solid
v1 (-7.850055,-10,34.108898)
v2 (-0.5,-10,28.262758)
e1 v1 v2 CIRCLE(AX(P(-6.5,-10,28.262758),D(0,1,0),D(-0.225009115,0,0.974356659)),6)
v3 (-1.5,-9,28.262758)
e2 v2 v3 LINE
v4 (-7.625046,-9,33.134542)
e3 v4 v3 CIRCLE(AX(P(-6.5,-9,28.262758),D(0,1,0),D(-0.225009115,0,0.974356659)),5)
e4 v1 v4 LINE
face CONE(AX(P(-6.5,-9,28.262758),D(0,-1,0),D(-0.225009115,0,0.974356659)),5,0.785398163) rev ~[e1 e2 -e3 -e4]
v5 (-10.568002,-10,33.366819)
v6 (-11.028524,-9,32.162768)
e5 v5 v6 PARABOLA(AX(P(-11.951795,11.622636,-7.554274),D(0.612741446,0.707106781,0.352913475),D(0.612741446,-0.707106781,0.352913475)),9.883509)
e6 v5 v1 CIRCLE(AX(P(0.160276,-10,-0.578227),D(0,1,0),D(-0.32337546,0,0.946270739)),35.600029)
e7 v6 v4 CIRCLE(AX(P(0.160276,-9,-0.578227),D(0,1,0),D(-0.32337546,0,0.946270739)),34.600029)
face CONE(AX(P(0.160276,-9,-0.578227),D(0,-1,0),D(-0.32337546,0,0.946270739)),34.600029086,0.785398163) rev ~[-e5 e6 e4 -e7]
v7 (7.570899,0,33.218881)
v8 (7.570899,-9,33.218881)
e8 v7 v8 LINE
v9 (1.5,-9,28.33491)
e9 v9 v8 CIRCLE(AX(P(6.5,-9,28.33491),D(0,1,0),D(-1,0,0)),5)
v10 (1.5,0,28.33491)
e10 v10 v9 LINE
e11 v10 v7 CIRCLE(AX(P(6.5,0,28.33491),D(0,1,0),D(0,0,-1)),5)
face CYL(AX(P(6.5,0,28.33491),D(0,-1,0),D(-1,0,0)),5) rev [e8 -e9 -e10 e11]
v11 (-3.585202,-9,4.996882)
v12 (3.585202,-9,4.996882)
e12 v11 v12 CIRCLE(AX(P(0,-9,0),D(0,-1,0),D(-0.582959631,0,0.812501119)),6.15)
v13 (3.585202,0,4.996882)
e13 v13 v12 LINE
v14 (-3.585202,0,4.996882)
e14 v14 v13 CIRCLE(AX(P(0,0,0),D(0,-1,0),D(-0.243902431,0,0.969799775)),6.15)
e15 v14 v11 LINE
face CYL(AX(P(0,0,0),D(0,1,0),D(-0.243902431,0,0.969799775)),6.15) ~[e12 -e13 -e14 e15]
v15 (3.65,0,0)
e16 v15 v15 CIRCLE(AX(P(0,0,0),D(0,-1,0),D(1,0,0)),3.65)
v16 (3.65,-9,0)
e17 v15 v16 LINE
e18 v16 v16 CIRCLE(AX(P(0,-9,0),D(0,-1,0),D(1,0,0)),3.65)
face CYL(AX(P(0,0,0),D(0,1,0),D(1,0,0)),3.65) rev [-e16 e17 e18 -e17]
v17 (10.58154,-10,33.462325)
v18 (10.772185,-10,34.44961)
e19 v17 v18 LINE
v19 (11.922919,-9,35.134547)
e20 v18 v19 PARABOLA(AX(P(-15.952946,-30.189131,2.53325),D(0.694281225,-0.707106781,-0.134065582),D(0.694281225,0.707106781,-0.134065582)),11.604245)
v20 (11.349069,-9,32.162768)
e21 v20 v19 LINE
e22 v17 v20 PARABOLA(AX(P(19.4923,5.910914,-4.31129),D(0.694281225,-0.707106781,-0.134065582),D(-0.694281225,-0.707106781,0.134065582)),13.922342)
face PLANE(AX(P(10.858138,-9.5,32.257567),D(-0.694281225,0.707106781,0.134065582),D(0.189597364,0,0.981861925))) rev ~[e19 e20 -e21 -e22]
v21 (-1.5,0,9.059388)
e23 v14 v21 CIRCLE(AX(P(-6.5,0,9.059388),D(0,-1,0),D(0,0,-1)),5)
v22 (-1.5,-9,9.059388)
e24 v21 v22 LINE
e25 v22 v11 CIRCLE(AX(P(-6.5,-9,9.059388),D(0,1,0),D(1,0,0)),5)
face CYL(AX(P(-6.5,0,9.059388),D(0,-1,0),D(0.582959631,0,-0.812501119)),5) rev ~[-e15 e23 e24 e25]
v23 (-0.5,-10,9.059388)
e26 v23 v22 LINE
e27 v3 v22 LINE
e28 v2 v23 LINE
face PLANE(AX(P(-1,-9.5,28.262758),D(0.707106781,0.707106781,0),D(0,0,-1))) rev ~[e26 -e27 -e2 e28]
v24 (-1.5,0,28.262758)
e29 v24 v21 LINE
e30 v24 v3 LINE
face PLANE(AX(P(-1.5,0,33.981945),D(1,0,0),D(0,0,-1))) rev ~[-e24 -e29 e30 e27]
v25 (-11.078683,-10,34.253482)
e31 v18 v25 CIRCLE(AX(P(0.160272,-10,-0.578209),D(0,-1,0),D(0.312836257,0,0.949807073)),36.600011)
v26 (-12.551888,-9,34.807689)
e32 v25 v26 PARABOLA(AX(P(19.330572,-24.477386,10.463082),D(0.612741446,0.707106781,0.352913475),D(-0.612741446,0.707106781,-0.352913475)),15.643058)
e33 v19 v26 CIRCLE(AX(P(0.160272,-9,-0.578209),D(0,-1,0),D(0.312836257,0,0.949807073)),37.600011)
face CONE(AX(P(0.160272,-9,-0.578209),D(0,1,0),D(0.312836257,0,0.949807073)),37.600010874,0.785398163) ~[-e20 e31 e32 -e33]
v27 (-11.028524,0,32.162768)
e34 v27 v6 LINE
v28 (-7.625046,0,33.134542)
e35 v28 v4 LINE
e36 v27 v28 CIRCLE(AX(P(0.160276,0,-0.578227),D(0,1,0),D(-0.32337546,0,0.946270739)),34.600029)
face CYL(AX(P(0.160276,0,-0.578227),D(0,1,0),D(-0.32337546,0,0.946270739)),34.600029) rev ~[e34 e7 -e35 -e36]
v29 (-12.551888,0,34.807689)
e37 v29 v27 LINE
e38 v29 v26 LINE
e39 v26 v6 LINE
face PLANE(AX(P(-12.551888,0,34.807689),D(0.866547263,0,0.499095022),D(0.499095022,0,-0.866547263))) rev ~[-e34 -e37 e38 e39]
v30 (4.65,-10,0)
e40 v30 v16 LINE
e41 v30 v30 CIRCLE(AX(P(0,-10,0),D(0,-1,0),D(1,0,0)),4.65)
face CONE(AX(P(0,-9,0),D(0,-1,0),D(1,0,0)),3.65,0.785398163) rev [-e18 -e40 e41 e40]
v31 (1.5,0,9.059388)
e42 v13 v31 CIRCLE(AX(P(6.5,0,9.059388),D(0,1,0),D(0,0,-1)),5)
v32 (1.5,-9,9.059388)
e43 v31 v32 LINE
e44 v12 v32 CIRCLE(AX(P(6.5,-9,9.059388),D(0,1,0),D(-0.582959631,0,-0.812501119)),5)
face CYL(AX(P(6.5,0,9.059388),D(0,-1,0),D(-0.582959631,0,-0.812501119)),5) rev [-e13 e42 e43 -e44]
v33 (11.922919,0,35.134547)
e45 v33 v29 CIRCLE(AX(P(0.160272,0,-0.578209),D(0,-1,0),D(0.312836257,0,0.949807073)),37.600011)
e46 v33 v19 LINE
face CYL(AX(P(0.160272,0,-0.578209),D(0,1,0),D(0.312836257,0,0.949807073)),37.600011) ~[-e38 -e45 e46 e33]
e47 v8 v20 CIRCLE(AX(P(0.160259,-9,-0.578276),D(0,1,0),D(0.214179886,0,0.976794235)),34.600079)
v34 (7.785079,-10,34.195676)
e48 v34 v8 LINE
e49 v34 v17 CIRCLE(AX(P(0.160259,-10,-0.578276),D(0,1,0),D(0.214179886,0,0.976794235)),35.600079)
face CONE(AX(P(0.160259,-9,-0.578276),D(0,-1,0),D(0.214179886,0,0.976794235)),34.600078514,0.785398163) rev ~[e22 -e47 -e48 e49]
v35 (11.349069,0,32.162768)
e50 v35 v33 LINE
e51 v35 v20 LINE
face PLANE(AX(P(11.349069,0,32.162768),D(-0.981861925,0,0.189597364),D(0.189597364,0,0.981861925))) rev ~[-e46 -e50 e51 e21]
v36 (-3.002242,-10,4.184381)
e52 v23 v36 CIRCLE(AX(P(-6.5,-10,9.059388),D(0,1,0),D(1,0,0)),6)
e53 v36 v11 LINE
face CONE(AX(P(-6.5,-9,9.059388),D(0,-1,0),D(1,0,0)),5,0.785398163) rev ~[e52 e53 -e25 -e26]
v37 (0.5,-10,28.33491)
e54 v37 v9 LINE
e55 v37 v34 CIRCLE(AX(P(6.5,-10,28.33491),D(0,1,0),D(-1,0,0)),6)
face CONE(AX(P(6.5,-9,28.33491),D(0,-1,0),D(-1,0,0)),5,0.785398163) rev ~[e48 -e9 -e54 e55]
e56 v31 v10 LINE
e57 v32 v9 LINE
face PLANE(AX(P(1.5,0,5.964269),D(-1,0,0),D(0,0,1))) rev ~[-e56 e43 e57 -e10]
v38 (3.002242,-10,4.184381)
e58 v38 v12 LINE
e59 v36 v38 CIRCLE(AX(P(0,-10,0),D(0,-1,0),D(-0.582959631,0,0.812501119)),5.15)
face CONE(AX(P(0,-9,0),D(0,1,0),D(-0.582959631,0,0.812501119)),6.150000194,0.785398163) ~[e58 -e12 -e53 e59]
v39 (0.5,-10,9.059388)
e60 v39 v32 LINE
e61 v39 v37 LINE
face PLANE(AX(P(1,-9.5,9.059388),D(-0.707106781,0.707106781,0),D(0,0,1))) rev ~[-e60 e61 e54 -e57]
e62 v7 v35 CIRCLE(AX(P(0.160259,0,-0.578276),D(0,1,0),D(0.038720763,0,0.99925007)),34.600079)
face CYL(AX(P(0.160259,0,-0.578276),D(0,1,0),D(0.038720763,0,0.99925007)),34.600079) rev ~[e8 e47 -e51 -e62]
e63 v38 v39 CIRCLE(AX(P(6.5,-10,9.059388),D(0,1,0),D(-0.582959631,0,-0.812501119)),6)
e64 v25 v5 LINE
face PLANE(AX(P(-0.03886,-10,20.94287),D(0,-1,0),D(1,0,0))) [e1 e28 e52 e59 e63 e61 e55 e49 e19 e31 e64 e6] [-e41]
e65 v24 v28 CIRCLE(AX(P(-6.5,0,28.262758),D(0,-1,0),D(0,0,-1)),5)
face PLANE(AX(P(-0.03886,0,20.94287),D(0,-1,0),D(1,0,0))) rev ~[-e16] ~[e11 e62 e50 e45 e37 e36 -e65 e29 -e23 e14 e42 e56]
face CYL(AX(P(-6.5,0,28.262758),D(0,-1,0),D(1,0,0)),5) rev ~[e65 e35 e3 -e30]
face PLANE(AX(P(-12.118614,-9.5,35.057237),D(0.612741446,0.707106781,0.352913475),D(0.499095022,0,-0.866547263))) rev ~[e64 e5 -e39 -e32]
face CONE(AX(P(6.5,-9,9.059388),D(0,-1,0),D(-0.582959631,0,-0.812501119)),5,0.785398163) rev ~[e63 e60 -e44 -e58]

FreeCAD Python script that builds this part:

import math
import FreeCAD as App
import Part
import Sketcher
from FreeCAD import Vector


def edges_at(feature, points):
    """Names of the edges that pass closest to the given points."""
    edges = feature.Shape.Edges
    near = lambda p: min(range(len(edges)), key=lambda i: edges[i].distToShape(Part.Vertex(*p))[0])
    return sorted({f"Edge{near(p) + 1}" for p in points})

doc = App.newDocument("Part")
body = doc.addObject("PartDesign::Body", "Body")

sketch1 = body.newObject("Sketcher::SketchObject", "Sketch")
sketch1.AttachmentSupport = (doc.getObject("XZ_Plane"), [""])
sketch1.MapMode = "FlatFace"
sketch1.addGeometry(Part.ArcOfCircle(Part.Circle(Vector(0, 0, 0), Vector(0, 0, 1), 6.2), math.radians(104), math.radians(436)), False)
sketch1.addGeometry(Part.LineSegment(Vector(1.5, 6, 0), Vector(1.5, 34, 0)), False)
sketch1.addGeometry(Part.ArcOfCircle(Part.Circle(Vector(0.2, -0.6, 0), Vector(0, 0, 1), 34.6), math.radians(71.13), math.radians(87.78)), False)
sketch1.addGeometry(Part.LineSegment(Vector(11.3, 32.2, 0), Vector(11.9, 35.1, 0)), False)
sketch1.addGeometry(Part.ArcOfCircle(Part.Circle(Vector(0.2, -0.6, 0), Vector(0, 0, 1), 37.6), math.radians(72), math.radians(110)), False)
sketch1.addGeometry(Part.LineSegment(Vector(-12.6, 34.8, 0), Vector(-11, 32.2, 0)), False)
sketch1.addGeometry(Part.ArcOfCircle(Part.Circle(Vector(0.2, -0.6, 0), Vector(0, 0, 1), 34.6), math.radians(92.75), math.radians(108.87)), False)
sketch1.addGeometry(Part.LineSegment(Vector(-1.5, 34, 0), Vector(-1.5, 6, 0)), False)
sketch1.addGeometry(Part.Circle(Vector(0, 0, 0), Vector(0, 0, 1), 3.6), False)
sketch1.addConstraint(Sketcher.Constraint("Coincident", 0, 2, 1, 1))
sketch1.addConstraint(Sketcher.Constraint("Coincident", 1, 2, 2, 2))
sketch1.addConstraint(Sketcher.Constraint("Coincident", 2, 1, 3, 1))
sketch1.addConstraint(Sketcher.Constraint("Coincident", 3, 2, 4, 1))
sketch1.addConstraint(Sketcher.Constraint("Coincident", 4, 2, 5, 1))
sketch1.addConstraint(Sketcher.Constraint("Coincident", 5, 2, 6, 2))
sketch1.addConstraint(Sketcher.Constraint("Coincident", 6, 1, 7, 1))
sketch1.addConstraint(Sketcher.Constraint("Coincident", 7, 2, 0, 1))
sketch1.addConstraint(Sketcher.Constraint("Vertical", 1))
sketch1.addConstraint(Sketcher.Constraint("Vertical", 7))
sketch1.addConstraint(Sketcher.Constraint("Coincident", 0, 3, -1, 1))
sketch1.addConstraint(Sketcher.Constraint("Coincident", 8, 3, -1, 1))
sketch1.addConstraint(Sketcher.Constraint("Horizontal", 2, 1, 5, 2))
sketch1.addConstraint(Sketcher.Constraint("Horizontal", 0, 2, 7, 2))
sketch1.addConstraint(Sketcher.Constraint("Diameter", 8, 7.3))
sketch1.addConstraint(Sketcher.Constraint("Radius", 0, 6.15))
sketch1.addConstraint(Sketcher.Constraint("DistanceX", 6, 1, 1, 2, 3.0))
sketch1.addConstraint(Sketcher.Constraint("Radius", 2, 34.600079))
sketch1.addConstraint(Sketcher.Constraint("Radius", 4, 37.600011))
sketch1.addConstraint(Sketcher.Constraint("Radius", 6, 34.600029))
sketch1.addConstraint(Sketcher.Constraint("DistanceY", 0, 2, 2, 1, 26.198499))
sketch1.addConstraint(Sketcher.Constraint("DistanceY", 1, 1, 1, 2, 28.031586))
sketch1.addConstraint(Sketcher.Constraint("DistanceY", 7, 2, 7, 1, 28.017676))
sketch1.addConstraint(Sketcher.Constraint("DistanceX", -1, 1, 2, 3, 0.160259))
sketch1.addConstraint(Sketcher.Constraint("DistanceY", 4, 3, -1, 1, 0.578209))
sketch1.addConstraint(Sketcher.Constraint("DistanceX", -1, 1, 3, 2, 11.922919))
sketch1.addConstraint(Sketcher.Constraint("DistanceX", 4, 2, -1, 1, 12.551888))
sketch1.addConstraint(Sketcher.Constraint("DistanceY", -1, 1, 4, 2, 34.807689))
sketch1.addConstraint(Sketcher.Constraint("Distance", 5, 3.052252))
pad1 = body.newObject("PartDesign::Pad", "Pad")
pad1.Profile = sketch1
pad1.Length = 10
doc.recompute()

fillet = body.newObject("PartDesign::Fillet", "Fillet")
fillet.Base = (pad1, edges_at(pad1, [
    (1.5, -5, 33.996),
    (-1.5, -5, 33.982),
    (1.5, -5, 5.964),
    (-1.5, -5, 5.964),
]))
fillet.Radius = 5
doc.recompute()

chamfer = body.newObject("PartDesign::Chamfer", "Chamfer")
chamfer.Base = (fillet, edges_at(fillet, [
    (-1.5, -10, 18.661),
    (-2.052, -10, 6.776),
    (-3.388, -10, 32.176),
    (0, -10, -6.15),
    (-9.339, -10, 32.692),
    (2.052, -10, 6.776),
    (-11.79, -10, 33.485),
    (1.5, -10, 18.697),
    (-0.342, -10, 37.018),
    (3.366, -10, 32.231),
    (11.636, -10, 33.649),
    (9.475, -10, 32.744),
    (-3.65, -10, 0),
]))
chamfer.Size = 1

doc.recompute()
